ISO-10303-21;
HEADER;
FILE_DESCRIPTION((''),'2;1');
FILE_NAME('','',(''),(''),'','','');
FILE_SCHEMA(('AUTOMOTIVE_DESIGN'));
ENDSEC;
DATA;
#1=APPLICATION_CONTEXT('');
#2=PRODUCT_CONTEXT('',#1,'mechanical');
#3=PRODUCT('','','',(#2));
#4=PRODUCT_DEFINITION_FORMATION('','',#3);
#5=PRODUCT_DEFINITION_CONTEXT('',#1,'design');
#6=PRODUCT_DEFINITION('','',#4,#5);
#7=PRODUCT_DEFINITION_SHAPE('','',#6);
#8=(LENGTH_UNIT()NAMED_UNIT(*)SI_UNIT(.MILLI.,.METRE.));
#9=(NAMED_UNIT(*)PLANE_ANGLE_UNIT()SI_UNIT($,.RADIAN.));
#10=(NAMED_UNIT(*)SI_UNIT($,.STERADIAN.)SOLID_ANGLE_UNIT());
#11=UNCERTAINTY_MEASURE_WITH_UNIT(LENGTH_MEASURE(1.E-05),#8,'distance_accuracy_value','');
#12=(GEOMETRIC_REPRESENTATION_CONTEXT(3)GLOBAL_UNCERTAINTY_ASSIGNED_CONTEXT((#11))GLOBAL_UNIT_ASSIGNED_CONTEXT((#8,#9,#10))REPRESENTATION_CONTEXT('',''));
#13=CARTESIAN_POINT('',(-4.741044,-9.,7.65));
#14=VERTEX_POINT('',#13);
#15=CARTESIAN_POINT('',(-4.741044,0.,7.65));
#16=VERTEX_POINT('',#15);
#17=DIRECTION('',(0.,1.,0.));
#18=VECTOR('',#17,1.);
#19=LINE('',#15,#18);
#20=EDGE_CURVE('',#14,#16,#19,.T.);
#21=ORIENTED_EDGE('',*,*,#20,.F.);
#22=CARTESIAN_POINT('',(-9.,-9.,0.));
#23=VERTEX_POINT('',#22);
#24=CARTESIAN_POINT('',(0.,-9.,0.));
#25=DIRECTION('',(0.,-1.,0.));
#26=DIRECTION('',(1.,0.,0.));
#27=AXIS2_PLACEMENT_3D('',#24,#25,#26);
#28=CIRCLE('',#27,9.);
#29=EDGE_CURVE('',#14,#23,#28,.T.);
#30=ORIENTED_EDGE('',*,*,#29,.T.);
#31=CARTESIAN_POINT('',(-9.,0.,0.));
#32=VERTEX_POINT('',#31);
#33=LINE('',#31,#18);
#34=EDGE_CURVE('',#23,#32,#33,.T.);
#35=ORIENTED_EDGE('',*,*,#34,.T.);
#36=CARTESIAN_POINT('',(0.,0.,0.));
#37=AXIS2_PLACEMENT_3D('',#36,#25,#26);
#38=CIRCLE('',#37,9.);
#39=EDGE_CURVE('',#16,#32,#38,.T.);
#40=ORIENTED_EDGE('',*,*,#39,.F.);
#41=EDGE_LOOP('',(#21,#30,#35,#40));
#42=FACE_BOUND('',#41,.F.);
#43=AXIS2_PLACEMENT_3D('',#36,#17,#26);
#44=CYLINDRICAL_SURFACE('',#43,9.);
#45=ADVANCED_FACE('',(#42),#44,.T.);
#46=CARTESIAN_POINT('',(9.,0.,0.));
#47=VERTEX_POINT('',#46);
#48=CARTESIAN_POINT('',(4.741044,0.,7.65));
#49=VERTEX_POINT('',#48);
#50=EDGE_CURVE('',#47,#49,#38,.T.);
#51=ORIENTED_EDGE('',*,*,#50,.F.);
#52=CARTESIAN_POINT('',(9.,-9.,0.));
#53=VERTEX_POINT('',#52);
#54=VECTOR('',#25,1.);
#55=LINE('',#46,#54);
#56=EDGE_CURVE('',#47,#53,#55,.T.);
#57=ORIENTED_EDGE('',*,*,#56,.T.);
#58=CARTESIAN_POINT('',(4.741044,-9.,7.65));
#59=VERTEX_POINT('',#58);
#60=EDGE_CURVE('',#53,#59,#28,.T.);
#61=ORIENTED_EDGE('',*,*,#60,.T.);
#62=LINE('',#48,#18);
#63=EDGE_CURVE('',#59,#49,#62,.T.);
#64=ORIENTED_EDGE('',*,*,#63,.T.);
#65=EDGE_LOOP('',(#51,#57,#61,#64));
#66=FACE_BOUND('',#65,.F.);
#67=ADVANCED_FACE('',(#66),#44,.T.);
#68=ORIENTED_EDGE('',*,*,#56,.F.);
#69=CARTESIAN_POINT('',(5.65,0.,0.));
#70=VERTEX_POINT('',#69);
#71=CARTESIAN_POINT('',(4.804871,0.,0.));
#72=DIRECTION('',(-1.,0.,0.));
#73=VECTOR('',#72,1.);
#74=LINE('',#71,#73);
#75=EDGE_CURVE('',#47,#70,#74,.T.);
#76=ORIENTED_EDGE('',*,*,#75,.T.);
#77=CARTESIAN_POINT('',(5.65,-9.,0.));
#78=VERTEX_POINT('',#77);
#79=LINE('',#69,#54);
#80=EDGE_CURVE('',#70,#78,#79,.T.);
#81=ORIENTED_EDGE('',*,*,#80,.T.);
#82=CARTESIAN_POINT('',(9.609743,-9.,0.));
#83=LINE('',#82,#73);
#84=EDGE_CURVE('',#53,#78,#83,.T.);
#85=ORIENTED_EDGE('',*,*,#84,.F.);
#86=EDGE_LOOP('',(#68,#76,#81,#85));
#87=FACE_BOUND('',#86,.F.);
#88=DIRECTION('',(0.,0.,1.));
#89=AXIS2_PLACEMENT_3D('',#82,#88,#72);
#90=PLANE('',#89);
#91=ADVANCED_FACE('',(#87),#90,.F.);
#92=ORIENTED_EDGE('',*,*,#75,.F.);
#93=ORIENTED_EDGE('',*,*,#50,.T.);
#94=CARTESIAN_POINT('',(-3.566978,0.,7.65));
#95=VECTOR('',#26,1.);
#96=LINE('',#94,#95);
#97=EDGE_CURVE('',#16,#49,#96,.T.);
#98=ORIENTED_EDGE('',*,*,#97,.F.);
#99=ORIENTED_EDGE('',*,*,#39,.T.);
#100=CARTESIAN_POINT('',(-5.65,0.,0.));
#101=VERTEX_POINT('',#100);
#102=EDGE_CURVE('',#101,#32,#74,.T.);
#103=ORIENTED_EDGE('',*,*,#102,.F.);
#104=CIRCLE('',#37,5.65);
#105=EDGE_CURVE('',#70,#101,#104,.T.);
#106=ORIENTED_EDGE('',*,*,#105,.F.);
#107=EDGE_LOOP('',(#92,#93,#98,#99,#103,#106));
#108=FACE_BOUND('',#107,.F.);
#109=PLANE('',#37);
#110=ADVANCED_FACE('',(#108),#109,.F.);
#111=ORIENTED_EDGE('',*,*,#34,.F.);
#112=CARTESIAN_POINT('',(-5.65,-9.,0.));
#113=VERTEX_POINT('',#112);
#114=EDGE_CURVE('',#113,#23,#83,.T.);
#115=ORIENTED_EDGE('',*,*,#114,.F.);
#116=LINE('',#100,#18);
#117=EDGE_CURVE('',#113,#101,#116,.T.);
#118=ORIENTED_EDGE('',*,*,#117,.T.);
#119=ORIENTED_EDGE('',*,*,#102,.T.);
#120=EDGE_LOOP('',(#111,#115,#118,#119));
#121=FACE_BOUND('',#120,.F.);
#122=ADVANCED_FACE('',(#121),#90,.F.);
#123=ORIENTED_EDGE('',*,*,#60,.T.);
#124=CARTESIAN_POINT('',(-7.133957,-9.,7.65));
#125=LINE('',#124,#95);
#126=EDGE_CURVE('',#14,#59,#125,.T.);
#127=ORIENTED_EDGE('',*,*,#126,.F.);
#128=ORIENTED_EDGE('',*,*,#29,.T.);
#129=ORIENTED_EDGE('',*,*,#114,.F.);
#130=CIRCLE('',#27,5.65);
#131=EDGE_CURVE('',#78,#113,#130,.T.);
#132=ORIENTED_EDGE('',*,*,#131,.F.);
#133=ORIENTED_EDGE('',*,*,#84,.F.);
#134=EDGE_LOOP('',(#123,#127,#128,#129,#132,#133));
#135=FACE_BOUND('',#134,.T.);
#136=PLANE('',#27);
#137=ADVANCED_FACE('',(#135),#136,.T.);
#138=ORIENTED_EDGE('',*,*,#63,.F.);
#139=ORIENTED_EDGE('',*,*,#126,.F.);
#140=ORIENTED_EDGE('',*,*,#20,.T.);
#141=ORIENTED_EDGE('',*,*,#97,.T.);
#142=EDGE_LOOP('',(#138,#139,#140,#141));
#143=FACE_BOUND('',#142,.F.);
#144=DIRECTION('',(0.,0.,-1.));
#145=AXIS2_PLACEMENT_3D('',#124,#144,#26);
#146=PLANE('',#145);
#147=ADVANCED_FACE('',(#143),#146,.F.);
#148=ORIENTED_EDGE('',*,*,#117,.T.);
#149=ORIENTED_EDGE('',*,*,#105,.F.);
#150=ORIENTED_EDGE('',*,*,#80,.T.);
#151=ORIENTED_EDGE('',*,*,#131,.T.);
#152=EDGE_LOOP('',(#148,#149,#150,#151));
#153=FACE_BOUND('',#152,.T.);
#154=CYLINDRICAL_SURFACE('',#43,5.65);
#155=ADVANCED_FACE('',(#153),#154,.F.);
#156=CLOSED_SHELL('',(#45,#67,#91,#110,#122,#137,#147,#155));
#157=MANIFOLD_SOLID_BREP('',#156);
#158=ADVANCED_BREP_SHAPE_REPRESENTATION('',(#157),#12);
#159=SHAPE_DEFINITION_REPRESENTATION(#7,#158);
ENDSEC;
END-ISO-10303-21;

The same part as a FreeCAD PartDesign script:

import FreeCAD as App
import Part
import Sketcher

V = App.Vector
Q = App.Units.Quantity

doc = App.newDocument("Part")
body = doc.addObject("PartDesign::Body", "Body")

# Sketch on XZ plane
sketch1 = body.newObject("Sketcher::SketchObject", "Sketch")
sketch1.AttachmentSupport = (doc.getObject("XZ_Plane"), [""])
sketch1.MapMode = "FlatFace"
sketch1.addGeometry([
    Part.Circle(V(0, 0, 0), V(0, 0, 1), 9),
    Part.Circle(V(0, 0, 0), V(0, 0, 1), 6),
], False)
sketch1.addConstraint([
    Sketcher.Constraint("Coincident", 0, 3, -1, 1),
    Sketcher.Constraint("Coincident", 1, 3, -1, 1),
    Sketcher.Constraint("Diameter", 0, Q("18 mm")),
    Sketcher.Constraint("Diameter", 1, Q("11.3 mm")),
])
pad1 = body.newObject("PartDesign::Pad", "Pad")
pad1.Profile = sketch1
pad1.Length = 9

# Sketch on XZ plane
sketch2 = body.newObject("Sketcher::SketchObject", "Sketch001")
sketch2.AttachmentSupport = (doc.getObject("XZ_Plane"), [""])
sketch2.MapMode = "FlatFace"
sketch2.AttachmentOffset = App.Placement(V(0, 0, 9), App.Rotation())
sketch2.addGeometry([
    Part.LineSegment(V(10, 0, 0), V(-10, 0, 0)),
    Part.LineSegment(V(-10, 0, 0), V(-10, -11, 0)),
    Part.LineSegment(V(-10, -11, 0), V(10, -11, 0)),
    Part.LineSegment(V(10, -11, 0), V(10, 0, 0)),
], False)
sketch2.addConstraint([
    Sketcher.Constraint("Coincident", 0, 2, 1, 1),
    Sketcher.Constraint("Coincident", 1, 2, 2, 1),
    Sketcher.Constraint("Coincident", 2, 2, 3, 1),
    Sketcher.Constraint("Coincident", 3, 2, 0, 1),
    Sketcher.Constraint("Horizontal", 0),
    Sketcher.Constraint("Vertical", 1),
    Sketcher.Constraint("Horizontal", 2),
    Sketcher.Constraint("Vertical", 3),
    Sketcher.Constraint("PointOnObject", 0, 2, -1),
    Sketcher.Constraint("DistanceX", 0, 2, 0, 1, Q("19.582359 mm")),
    Sketcher.Constraint("DistanceY", 1, 2, 1, 1, Q("10.801357 mm")),
    Sketcher.Constraint("DistanceX", 0, 2, -1, 1, Q("9.972616 mm")),
])
pocket1 = body.newObject("PartDesign::Pocket", "Pocket")
pocket1.Profile = sketch2
pocket1.Length = 25

# Sketch on XZ plane
sketch3 = body.newObject("Sketcher::SketchObject", "Sketch002")
sketch3.AttachmentSupport = (doc.getObject("XZ_Plane"), [""])
sketch3.MapMode = "FlatFace"
sketch3.AttachmentOffset = App.Placement(V(0, 0, 9), App.Rotation())
sketch3.addGeometry([
    Part.LineSegment(V(-7.1, 7.7, 0), V(5.9, 7.7, 0)),
    Part.LineSegment(V(5.9, 7.7, 0), V(5.9, 11.9, 0)),
    Part.LineSegment(V(5.9, 11.9, 0), V(-7.1, 11.9, 0)),
    Part.LineSegment(V(-7.1, 11.9, 0), V(-7.1, 7.7, 0)),
], False)
sketch3.addConstraint([
    Sketcher.Constraint("Coincident", 0, 2, 1, 1),
    Sketcher.Constraint("Coincident", 1, 2, 2, 1),
    Sketcher.Constraint("Coincident", 2, 2, 3, 1),
    Sketcher.Constraint("Coincident", 3, 2, 0, 1),
    Sketcher.Constraint("Horizontal", 0),
    Sketcher.Constraint("Vertical", 1),
    Sketcher.Constraint("Horizontal", 2),
    Sketcher.Constraint("Vertical", 3),
    Sketcher.Constraint("DistanceY", -1, 1, 0, 2, Q("7.65 mm")),
    Sketcher.Constraint("DistanceX", 0, 1, 0, 2, Q("13.000959 mm")),
    Sketcher.Constraint("DistanceY", 1, 1, 1, 2, Q("4.251876 mm")),
    Sketcher.Constraint("DistanceX", -1, 1, 0, 2, Q("5.867002 mm")),
])
pocket2 = body.newObject("PartDesign::Pocket", "Pocket001")
pocket2.Profile = sketch3
pocket2.Length = 25

doc.recompute()
